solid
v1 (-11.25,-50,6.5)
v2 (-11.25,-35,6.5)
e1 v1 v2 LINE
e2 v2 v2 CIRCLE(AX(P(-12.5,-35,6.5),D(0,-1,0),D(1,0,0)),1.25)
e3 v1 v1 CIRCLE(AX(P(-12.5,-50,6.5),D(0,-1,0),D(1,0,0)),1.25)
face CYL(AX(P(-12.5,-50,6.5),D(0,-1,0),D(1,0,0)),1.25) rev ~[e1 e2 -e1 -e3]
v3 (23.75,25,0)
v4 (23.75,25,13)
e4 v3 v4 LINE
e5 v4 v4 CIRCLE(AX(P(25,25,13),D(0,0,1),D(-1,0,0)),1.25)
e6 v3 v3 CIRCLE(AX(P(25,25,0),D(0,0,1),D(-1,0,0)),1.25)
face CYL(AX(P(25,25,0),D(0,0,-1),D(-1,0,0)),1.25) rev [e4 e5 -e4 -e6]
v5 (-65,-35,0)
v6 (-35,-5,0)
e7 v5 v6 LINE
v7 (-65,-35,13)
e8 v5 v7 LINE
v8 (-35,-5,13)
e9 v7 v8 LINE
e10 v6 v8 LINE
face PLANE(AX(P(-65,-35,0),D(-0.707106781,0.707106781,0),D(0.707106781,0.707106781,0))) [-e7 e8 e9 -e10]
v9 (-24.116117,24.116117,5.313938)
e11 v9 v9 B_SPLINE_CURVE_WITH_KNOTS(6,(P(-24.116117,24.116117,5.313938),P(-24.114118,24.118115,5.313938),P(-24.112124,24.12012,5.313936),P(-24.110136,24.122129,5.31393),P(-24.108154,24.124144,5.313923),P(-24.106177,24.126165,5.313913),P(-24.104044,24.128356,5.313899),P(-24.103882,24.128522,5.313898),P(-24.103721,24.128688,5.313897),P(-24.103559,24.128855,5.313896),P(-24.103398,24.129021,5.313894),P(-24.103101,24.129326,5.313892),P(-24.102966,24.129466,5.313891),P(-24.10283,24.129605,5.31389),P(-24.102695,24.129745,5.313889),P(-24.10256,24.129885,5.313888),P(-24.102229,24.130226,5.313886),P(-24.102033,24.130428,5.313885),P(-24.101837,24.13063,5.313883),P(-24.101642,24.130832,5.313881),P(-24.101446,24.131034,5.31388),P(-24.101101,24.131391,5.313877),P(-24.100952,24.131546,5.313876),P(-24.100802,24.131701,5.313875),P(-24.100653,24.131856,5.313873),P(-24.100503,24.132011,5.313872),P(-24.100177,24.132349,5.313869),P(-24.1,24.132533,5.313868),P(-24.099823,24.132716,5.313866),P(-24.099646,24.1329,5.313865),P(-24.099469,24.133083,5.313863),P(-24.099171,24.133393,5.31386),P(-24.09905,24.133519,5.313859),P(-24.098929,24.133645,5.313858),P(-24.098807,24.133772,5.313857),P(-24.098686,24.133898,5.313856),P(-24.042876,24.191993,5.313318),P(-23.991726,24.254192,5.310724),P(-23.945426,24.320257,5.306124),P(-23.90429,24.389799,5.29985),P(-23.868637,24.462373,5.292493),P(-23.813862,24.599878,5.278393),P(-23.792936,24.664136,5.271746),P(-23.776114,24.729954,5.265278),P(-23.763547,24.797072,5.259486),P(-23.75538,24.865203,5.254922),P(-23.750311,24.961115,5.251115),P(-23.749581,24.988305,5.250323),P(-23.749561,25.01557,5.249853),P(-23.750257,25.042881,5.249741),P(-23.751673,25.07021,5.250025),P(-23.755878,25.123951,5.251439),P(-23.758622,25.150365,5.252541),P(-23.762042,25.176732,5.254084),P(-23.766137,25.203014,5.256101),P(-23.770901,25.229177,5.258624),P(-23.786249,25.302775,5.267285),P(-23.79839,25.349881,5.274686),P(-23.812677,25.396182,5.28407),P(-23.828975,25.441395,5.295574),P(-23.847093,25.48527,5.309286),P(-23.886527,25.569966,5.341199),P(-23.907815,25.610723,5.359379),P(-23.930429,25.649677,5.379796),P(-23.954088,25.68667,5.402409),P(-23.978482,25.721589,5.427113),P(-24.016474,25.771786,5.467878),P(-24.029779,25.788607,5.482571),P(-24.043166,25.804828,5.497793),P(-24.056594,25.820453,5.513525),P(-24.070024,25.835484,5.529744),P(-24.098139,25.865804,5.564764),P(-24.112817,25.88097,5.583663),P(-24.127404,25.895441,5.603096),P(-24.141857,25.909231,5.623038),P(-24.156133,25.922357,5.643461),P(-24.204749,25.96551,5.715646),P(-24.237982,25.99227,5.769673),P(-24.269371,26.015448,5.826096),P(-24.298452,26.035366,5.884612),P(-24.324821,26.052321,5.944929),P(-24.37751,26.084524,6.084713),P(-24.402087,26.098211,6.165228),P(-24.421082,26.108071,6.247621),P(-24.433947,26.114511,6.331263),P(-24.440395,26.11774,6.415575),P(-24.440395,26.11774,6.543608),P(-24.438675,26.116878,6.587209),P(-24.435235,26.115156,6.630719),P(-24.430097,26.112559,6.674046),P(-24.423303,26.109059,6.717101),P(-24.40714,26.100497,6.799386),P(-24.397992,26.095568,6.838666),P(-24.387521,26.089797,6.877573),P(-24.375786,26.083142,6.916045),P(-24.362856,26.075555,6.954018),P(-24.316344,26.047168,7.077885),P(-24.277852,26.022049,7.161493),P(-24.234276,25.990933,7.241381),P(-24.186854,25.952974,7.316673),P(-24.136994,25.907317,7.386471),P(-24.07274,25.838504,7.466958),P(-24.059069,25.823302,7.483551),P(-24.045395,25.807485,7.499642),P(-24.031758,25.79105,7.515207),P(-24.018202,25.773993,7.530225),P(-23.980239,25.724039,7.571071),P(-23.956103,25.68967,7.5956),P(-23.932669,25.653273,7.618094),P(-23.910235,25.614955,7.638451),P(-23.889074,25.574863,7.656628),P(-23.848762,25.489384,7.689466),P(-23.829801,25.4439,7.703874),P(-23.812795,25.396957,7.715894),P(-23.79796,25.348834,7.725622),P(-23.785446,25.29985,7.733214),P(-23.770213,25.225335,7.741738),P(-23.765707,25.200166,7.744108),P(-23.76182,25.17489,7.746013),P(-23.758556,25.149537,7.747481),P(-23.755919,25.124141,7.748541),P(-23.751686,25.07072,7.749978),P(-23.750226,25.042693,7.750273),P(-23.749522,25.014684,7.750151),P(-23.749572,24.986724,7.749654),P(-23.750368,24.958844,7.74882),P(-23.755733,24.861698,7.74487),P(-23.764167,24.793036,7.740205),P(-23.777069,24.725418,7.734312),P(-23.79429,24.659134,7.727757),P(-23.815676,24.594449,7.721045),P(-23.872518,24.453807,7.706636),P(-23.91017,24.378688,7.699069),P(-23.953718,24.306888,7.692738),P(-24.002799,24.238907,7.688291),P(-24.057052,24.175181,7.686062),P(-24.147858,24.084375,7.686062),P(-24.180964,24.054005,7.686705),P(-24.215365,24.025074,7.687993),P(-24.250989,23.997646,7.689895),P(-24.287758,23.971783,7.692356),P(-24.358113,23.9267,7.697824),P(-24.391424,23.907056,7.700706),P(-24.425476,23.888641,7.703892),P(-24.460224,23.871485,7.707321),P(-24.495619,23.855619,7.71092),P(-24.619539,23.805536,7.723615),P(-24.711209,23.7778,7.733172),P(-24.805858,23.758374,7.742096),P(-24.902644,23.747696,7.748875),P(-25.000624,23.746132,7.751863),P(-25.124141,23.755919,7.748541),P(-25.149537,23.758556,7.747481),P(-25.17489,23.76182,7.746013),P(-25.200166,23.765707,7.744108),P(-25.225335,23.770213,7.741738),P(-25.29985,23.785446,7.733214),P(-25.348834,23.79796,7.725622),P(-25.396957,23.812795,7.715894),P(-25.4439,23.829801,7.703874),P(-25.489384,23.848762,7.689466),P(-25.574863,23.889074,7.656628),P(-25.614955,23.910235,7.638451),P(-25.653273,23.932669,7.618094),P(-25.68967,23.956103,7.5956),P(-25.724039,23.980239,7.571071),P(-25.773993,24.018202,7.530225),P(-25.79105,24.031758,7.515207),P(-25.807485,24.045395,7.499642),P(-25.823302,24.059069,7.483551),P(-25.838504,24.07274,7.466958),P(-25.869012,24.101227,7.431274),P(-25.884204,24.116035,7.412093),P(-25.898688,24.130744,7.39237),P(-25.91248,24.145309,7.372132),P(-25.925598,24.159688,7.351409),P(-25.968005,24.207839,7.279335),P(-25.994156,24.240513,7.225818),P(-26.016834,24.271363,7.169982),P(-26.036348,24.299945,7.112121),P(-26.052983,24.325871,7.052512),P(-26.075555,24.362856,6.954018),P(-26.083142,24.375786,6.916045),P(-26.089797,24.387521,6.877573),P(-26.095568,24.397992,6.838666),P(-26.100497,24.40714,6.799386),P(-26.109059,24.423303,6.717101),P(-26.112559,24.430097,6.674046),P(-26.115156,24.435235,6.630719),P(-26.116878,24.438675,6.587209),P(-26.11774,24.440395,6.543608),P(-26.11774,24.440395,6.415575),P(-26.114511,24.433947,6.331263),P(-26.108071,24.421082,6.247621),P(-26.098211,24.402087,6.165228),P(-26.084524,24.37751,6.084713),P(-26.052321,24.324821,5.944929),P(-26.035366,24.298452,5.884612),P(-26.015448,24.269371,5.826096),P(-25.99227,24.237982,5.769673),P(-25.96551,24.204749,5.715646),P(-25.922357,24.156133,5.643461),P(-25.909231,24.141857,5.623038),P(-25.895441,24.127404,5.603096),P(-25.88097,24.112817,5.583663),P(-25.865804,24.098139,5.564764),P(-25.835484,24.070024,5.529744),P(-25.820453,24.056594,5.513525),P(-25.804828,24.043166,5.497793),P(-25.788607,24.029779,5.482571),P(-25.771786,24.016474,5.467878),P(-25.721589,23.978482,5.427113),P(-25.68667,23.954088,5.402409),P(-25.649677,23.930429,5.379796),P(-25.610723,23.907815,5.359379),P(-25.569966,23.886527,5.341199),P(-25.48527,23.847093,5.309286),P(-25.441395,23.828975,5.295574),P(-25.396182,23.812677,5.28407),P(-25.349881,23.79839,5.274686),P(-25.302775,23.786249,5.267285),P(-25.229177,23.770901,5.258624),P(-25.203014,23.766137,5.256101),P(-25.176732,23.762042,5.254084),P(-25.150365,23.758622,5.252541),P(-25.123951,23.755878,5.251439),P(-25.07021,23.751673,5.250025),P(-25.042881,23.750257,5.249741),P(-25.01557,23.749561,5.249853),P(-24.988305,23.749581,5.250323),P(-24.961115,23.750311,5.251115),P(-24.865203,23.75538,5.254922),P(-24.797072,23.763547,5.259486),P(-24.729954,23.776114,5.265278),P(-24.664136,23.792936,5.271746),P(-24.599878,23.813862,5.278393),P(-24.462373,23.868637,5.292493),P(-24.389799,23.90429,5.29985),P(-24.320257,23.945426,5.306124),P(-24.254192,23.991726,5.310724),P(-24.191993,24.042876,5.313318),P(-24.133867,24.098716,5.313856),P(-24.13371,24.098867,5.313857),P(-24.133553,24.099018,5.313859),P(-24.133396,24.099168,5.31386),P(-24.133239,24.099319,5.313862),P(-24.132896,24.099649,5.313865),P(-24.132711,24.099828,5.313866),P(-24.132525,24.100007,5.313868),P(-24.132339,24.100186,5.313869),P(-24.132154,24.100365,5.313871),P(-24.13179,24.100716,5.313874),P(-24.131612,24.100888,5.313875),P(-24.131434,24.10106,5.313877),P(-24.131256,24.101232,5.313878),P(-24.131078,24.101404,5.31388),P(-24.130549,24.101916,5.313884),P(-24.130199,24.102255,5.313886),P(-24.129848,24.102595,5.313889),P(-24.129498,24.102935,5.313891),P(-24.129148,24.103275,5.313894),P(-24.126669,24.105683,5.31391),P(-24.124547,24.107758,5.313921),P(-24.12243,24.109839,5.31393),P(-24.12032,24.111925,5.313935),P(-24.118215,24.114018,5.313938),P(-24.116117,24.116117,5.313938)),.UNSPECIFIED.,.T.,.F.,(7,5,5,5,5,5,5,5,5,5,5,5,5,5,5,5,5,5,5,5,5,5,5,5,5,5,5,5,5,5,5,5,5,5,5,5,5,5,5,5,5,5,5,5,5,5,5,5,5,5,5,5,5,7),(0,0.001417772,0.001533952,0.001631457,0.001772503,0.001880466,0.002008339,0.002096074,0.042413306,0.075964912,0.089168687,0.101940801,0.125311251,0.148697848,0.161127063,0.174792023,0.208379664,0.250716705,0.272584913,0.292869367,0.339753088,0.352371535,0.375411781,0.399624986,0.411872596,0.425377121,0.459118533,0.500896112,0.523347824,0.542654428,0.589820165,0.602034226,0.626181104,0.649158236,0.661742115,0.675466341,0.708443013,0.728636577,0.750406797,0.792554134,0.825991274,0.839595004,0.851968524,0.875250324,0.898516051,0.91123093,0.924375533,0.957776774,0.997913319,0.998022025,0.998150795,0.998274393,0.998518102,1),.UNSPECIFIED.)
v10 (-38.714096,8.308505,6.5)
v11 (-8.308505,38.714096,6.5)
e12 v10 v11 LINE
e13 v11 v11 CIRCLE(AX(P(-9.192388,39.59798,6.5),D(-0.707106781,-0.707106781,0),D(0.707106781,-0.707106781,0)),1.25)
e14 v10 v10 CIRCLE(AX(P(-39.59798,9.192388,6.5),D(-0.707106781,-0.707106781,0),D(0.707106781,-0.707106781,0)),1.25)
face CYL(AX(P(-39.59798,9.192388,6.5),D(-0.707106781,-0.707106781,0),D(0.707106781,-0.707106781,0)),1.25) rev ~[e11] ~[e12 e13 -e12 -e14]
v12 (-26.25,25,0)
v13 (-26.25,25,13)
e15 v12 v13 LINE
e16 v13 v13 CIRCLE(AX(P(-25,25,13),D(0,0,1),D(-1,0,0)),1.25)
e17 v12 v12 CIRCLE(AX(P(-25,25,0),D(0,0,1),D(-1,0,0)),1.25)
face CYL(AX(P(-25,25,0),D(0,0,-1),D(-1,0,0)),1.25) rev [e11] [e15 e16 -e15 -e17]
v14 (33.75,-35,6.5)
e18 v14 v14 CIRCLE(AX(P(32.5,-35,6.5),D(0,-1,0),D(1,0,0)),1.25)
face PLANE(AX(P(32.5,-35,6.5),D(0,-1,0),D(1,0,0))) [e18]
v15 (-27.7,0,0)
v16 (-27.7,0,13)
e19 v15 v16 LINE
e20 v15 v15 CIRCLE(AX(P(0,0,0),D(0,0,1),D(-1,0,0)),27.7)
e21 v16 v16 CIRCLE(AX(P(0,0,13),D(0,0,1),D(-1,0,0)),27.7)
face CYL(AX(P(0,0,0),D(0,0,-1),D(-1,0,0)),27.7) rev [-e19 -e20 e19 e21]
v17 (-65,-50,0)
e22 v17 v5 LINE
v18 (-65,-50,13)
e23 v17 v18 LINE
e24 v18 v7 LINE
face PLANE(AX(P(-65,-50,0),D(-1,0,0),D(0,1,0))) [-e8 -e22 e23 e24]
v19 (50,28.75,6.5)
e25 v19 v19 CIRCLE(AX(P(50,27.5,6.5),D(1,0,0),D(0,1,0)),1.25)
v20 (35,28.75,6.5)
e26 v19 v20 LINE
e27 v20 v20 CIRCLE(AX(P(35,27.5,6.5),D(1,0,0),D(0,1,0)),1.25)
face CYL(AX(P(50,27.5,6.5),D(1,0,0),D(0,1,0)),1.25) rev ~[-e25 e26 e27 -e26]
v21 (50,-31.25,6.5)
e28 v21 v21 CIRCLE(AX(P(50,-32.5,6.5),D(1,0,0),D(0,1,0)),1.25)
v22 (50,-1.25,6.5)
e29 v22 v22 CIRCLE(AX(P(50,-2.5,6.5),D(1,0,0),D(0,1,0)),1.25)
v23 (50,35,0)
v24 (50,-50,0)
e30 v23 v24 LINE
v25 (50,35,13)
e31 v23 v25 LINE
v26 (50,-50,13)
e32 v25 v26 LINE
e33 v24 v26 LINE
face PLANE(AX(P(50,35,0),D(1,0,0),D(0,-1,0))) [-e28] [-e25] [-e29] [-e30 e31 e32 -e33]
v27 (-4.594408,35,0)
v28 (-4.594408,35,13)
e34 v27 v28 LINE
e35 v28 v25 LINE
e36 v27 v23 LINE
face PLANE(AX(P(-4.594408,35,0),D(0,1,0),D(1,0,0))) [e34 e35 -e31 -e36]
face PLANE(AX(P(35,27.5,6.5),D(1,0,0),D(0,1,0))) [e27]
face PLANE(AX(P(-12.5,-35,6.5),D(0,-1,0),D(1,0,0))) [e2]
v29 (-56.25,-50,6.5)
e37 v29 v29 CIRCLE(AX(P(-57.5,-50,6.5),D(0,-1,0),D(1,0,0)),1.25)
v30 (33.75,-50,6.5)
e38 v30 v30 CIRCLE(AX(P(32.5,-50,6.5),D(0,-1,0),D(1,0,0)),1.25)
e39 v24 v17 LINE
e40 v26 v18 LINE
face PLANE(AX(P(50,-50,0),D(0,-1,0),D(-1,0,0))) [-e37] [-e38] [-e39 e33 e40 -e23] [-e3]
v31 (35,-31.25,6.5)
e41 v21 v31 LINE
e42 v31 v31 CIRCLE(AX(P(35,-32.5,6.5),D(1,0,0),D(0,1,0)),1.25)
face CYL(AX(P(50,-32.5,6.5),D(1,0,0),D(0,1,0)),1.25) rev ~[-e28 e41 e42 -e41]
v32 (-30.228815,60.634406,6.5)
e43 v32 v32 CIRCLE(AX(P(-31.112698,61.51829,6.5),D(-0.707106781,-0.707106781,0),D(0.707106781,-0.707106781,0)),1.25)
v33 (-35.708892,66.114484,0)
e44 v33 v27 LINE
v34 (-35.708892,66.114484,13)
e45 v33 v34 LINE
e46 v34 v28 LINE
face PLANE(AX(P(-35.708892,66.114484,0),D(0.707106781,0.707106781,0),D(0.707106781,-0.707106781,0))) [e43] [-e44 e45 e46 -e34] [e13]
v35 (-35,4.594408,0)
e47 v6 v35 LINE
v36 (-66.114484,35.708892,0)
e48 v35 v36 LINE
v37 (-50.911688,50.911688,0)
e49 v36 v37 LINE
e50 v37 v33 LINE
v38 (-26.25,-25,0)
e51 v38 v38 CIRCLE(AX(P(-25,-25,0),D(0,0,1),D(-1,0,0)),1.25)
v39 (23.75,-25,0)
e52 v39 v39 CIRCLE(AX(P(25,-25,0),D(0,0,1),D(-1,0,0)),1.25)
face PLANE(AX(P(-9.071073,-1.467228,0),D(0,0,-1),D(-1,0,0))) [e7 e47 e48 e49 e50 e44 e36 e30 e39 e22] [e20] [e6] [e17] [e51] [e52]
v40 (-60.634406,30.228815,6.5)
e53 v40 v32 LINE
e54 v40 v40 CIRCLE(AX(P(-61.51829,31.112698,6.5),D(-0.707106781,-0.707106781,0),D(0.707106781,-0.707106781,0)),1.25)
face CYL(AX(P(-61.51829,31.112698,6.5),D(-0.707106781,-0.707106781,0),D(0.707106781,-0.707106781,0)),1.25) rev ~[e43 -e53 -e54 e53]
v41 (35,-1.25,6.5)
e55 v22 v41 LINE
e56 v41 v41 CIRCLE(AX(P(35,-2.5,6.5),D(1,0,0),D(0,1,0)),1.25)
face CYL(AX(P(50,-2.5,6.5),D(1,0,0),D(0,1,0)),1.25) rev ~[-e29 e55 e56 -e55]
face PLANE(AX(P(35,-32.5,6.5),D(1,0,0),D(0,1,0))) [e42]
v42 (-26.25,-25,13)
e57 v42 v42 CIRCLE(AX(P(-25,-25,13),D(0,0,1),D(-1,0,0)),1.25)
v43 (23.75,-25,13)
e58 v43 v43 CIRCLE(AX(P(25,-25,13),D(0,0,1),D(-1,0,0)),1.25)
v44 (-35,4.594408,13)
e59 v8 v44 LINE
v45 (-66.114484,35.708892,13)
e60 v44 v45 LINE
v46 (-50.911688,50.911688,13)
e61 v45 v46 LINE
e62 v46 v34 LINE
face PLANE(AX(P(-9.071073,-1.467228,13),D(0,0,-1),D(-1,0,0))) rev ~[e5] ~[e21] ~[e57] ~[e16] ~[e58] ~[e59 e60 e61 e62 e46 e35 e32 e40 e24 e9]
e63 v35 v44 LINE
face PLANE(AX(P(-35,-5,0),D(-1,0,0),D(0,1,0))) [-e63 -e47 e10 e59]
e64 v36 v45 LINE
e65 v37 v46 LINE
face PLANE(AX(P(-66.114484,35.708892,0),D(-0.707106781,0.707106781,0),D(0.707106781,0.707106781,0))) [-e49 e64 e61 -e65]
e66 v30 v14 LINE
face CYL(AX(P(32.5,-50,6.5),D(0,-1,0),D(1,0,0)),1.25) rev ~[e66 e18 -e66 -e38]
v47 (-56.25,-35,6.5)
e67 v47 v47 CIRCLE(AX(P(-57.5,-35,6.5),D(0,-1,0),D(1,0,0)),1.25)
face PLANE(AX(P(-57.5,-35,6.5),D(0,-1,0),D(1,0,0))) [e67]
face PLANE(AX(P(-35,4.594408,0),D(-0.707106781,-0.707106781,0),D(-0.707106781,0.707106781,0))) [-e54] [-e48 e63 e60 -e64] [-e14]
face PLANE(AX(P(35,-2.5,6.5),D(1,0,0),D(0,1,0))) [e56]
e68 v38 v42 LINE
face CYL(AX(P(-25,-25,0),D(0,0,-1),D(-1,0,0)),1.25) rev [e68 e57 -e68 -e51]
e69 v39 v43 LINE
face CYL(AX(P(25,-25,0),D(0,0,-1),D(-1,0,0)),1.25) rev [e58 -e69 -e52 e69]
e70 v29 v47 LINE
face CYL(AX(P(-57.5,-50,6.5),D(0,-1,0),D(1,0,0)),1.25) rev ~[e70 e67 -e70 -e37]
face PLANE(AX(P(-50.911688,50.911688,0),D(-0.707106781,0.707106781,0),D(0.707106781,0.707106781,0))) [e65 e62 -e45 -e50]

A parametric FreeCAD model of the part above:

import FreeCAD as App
import Part
import Sketcher
Q = App.Units.Quantity

doc = App.newDocument("Part")
body = doc.addObject("PartDesign::Body", "Body")

# Sketch on XY plane
sketch1 = body.newObject("Sketcher::SketchObject", "Sketch")
sketch1.AttachmentSupport = (doc.getObject("XY_Plane"), [""])
sketch1.MapMode = "FlatFace"
sketch1.addGeometry([
    Part.LineSegment(App.Vector(50, -50, 0), App.Vector(50, 35, 0)),  # 0
    Part.LineSegment(App.Vector(50, 35, 0), App.Vector(-4.594408, 35, 0)),  # 1
    Part.LineSegment(App.Vector(-4.594408, 35, 0), App.Vector(-35.708892, 66.114484, 0)),  # 2
    Part.LineSegment(App.Vector(-35.708892, 66.114484, 0), App.Vector(-50.911688, 50.911688, 0)),  # 3
    Part.LineSegment(App.Vector(-50.911688, 50.911688, 0), App.Vector(-66.114484, 35.708892, 0)),  # 4
    Part.LineSegment(App.Vector(-66.114484, 35.708892, 0), App.Vector(-35, 4.594408, 0)),  # 5
    Part.LineSegment(App.Vector(-35, 4.594408, 0), App.Vector(-35, -5, 0)),  # 6
    Part.LineSegment(App.Vector(-35, -5, 0), App.Vector(-65, -35, 0)),  # 7
    Part.LineSegment(App.Vector(-65, -35, 0), App.Vector(-65, -50, 0)),  # 8
    Part.LineSegment(App.Vector(-65, -50, 0), App.Vector(50, -50, 0)),  # 9
    Part.Circle(App.Vector(25, -25, 0), App.Vector(0, 0, 1), 1.25),  # 10
    Part.Circle(App.Vector(-25, -25, 0), App.Vector(0, 0, 1), 1.25),  # 11
    Part.Circle(App.Vector(25, 25, 0), App.Vector(0, 0, 1), 1.25),  # 12
    Part.Circle(App.Vector(0, 0, 0), App.Vector(0, 0, 1), 27.7),  # 13
    Part.Circle(App.Vector(-25, 25, 0), App.Vector(0, 0, 1), 1.25),  # 14
], False)
sketch1.addConstraint([
    Sketcher.Constraint("Coincident", 0, 2, 1, 1),
    Sketcher.Constraint("Coincident", 1, 2, 2, 1),
    Sketcher.Constraint("Coincident", 2, 2, 3, 1),
    Sketcher.Constraint("Coincident", 3, 2, 4, 1),
    Sketcher.Constraint("Coincident", 4, 2, 5, 1),
    Sketcher.Constraint("Coincident", 5, 2, 6, 1),
    Sketcher.Constraint("Coincident", 6, 2, 7, 1),
    Sketcher.Constraint("Coincident", 7, 2, 8, 1),
    Sketcher.Constraint("Coincident", 8, 2, 9, 1),
    Sketcher.Constraint("Coincident", 9, 2, 0, 1),
    Sketcher.Constraint("Vertical", 0),
    Sketcher.Constraint("Horizontal", 1),
    Sketcher.Constraint("Vertical", 6),
    Sketcher.Constraint("Vertical", 8),
    Sketcher.Constraint("Horizontal", 9),
    Sketcher.Constraint("Coincident", 13, 3, -1, 1),
    Sketcher.Constraint("Equal", 10, 11),
    Sketcher.Constraint("Equal", 11, 12),
    Sketcher.Constraint("Equal", 12, 14),
    Sketcher.Constraint("Symmetric", 11, 3, 12, 3, -1, 1),
    Sketcher.Constraint("Symmetric", 10, 3, 14, 3, -1, 1),
    Sketcher.Constraint("Symmetric", 10, 3, 11, 3, -2),
    Sketcher.Constraint("Perpendicular", 2, 3),
    Sketcher.Constraint("Parallel", 3, 4),
    Sketcher.Constraint("Perpendicular", 4, 5),
    Sketcher.Constraint("Perpendicular", 5, 7),
    Sketcher.Constraint("Equal", 3, 4),
    Sketcher.Constraint("Equal", 2, 5),
    Sketcher.Constraint("Diameter", 10, Q("2.5 mm")),
    Sketcher.Constraint("Diameter", 13, Q("55.4 mm")),
    Sketcher.Constraint("DistanceX", 9, 1, 9, 2, Q("115 mm")),
    Sketcher.Constraint("DistanceY", 0, 1, 0, 2, Q("85 mm")),
    Sketcher.Constraint("DistanceY", 8, 2, 8, 1, Q("15 mm")),
    Sketcher.Constraint("Angle", 2, Q("135 deg")),
    Sketcher.Constraint("DistanceX", -1, 1, 10, 3, Q("25 mm")),
    Sketcher.Constraint("DistanceY", 10, 3, -1, 1, Q("25 mm")),
    Sketcher.Constraint("DistanceX", -1, 1, 0, 2, Q("50 mm")),
    Sketcher.Constraint("DistanceY", -1, 1, 0, 2, Q("35 mm")),
    Sketcher.Constraint("DistanceX", 5, 2, -1, 1, Q("35 mm")),
    Sketcher.Constraint("Distance", 3, Q("21.5 mm")),
    Sketcher.Constraint("DistanceX", 3, 2, -1, 1, Q("50.911688 mm")),
])
pad1 = body.newObject("PartDesign::Pad", "Pad")
pad1.Profile = sketch1
pad1.Length = 13

# Sketch on an angled plane
sketch2 = body.newObject("Sketcher::SketchObject", "Sketch001")
sketch2.Placement = App.Placement(App.Vector(-15.202796, -15.202796, 0), App.Rotation(App.Vector(0, 0, 1), App.Vector(-0.707106781, 0.707106781, 0), App.Vector(-0.707106781, -0.707106781, 0), "ZXY"))
sketch2.addGeometry(Part.Circle(App.Vector(6.5, 65.5, 0), App.Vector(0, 0, 1), 1.25), False)
sketch2.addConstraint([
    Sketcher.Constraint("Diameter", 0, Q("2.5 mm")),
    Sketcher.Constraint("DistanceX", -1, 1, 0, 3, Q("6.5 mm")),
    Sketcher.Constraint("DistanceY", -1, 1, 0, 3, Q("65.5 mm")),
])
pocket1 = body.newObject("PartDesign::Pocket", "Pocket")
pocket1.Profile = sketch2
pocket1.Type = "UpToFirst"

# Sketch on an angled plane
sketch3 = body.newObject("Sketcher::SketchObject", "Sketch002")
sketch3.Placement = App.Placement(App.Vector(-15.202796, -15.202796, 0), App.Rotation(App.Vector(0, 0, 1), App.Vector(-0.707106781, 0.707106781, 0), App.Vector(-0.707106781, -0.707106781, 0), "ZXY"))
sketch3.addGeometry(Part.Circle(App.Vector(6.5, 34.5, 0), App.Vector(0, 0, 1), 1.25), False)
sketch3.addConstraint([
    Sketcher.Constraint("Diameter", 0, Q("2.5 mm")),
    Sketcher.Constraint("DistanceX", -1, 1, 0, 3, Q("6.5 mm")),
    Sketcher.Constraint("DistanceY", -1, 1, 0, 3, Q("34.5 mm")),
])
pocket2 = body.newObject("PartDesign::Pocket", "Pocket001")
pocket2.Profile = sketch3
pocket2.Length = 43

# Sketch on XZ plane
sketch4 = body.newObject("Sketcher::SketchObject", "Sketch003")
sketch4.AttachmentSupport = (doc.getObject("XZ_Plane"), [""])
sketch4.MapMode = "FlatFace"
sketch4.AttachmentOffset = App.Placement(App.Vector(0, 0, 50), App.Rotation())
sketch4.addGeometry([
    Part.Circle(App.Vector(-57.5, 6.5, 0), App.Vector(0, 0, 1), 1.25),
    Part.Circle(App.Vector(32.5, 6.5, 0), App.Vector(0, 0, 1), 1.25),
    Part.Circle(App.Vector(-12.5, 6.5, 0), App.Vector(0, 0, 1), 1.25),
], False)
sketch4.addConstraint([
    Sketcher.Constraint("Equal", 0, 1),
    Sketcher.Constraint("Equal", 1, 2),
    Sketcher.Constraint("Horizontal", 0, 3, 1, 3),
    Sketcher.Constraint("Horizontal", 1, 3, 2, 3),
    Sketcher.Constraint("Diameter", 0, Q("2.5 mm")),
    Sketcher.Constraint("DistanceX", 0, 3, 1, 3, Q("90 mm")),
    Sketcher.Constraint("DistanceX", 0, 3, 2, 3, Q("45 mm")),
    Sketcher.Constraint("DistanceX", 0, 3, -1, 1, Q("57.5 mm")),
    Sketcher.Constraint("DistanceY", -1, 1, 0, 3, Q("6.5 mm")),
])
pocket3 = body.newObject("PartDesign::Pocket", "Pocket002")
pocket3.Profile = sketch4
pocket3.Length = 15

# Sketch on YZ plane
sketch5 = body.newObject("Sketcher::SketchObject", "Sketch004")
sketch5.AttachmentSupport = (doc.getObject("YZ_Plane"), [""])
sketch5.MapMode = "FlatFace"
sketch5.AttachmentOffset = App.Placement(App.Vector(0, 0, 50), App.Rotation())
sketch5.addGeometry([
    Part.Circle(App.Vector(-32.5, 6.5, 0), App.Vector(0, 0, 1), 1.25),
    Part.Circle(App.Vector(27.5, 6.5, 0), App.Vector(0, 0, 1), 1.25),
    Part.Circle(App.Vector(-2.5, 6.5, 0), App.Vector(0, 0, 1), 1.25),
], False)
sketch5.addConstraint([
    Sketcher.Constraint("Equal", 0, 1),
    Sketcher.Constraint("Equal", 1, 2),
    Sketcher.Constraint("Horizontal", 0, 3, 1, 3),
    Sketcher.Constraint("Horizontal", 1, 3, 2, 3),
    Sketcher.Constraint("Diameter", 0, Q("2.5 mm")),
    Sketcher.Constraint("DistanceX", 0, 3, 1, 3, Q("60 mm")),
    Sketcher.Constraint("DistanceX", 0, 3, 2, 3, Q("30 mm")),
    Sketcher.Constraint("DistanceX", 0, 3, -1, 1, Q("32.5 mm")),
    Sketcher.Constraint("DistanceY", -1, 1, 0, 3, Q("6.5 mm")),
])
pocket4 = body.newObject("PartDesign::Pocket", "Pocket003")
pocket4.Profile = sketch5
pocket4.Length = 15

doc.recompute()
